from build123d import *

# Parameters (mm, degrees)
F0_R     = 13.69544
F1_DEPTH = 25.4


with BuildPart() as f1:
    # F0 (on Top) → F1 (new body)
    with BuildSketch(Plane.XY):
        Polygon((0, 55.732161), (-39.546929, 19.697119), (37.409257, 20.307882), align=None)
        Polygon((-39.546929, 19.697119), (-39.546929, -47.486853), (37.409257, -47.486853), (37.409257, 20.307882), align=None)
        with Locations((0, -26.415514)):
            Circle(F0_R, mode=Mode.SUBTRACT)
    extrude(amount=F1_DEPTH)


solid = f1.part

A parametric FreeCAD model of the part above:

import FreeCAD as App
import Part
import Sketcher

V = App.Vector
Q = App.Units.Quantity

doc = App.newDocument("Part")
body = doc.addObject("PartDesign::Body", "Body")

sketch1 = body.newObject("Sketcher::SketchObject", "Sketch")
sketch1.AttachmentSupport = (doc.getObject("XY_Plane"), [""])
sketch1.MapMode = "FlatFace"
sketch1.addGeometry([
    Part.LineSegment(V(0, 55.732161, 0), V(-39.546929, 19.697119, 0)),
    Part.LineSegment(V(-39.546929, 19.697119, 0), V(-39.546929, -47.486853, 0)),
    Part.LineSegment(V(-39.546929, -47.486853, 0), V(37.409257, -47.486853, 0)),
    Part.LineSegment(V(37.409257, -47.486853, 0), V(37.409257, 20.307882, 0)),
    Part.LineSegment(V(37.409257, 20.307882, 0), V(0, 55.732161, 0)),
    Part.Circle(V(0, -26.415514, 0), V(0, 0, 1), 13.69544),
], False)
sketch1.addConstraint([
    Sketcher.Constraint("Coincident", 0, 2, 1, 1),
    Sketcher.Constraint("Coincident", 1, 2, 2, 1),
    Sketcher.Constraint("Coincident", 2, 2, 3, 1),
    Sketcher.Constraint("Coincident", 3, 2, 4, 1),
    Sketcher.Constraint("Coincident", 4, 2, 0, 1),
    Sketcher.Constraint("Vertical", 1),
    Sketcher.Constraint("Horizontal", 2),
    Sketcher.Constraint("Vertical", 3),
    Sketcher.Constraint("PointOnObject", 5, 3, -2),
    Sketcher.Constraint("PointOnObject", 4, 2, -2),
    Sketcher.Constraint("Diameter", 5, 27.39088),
    Sketcher.Constraint("Distance", 4, 51.52021),
    Sketcher.Constraint("DistanceX", 2, 1, 2, 2, 76.956186),
    Sketcher.Constraint("DistanceY", 1, 2, 1, 1, 67.183972),
    Sketcher.Constraint("DistanceY", 3, 1, 3, 2, 67.794735),
    Sketcher.Constraint("DistanceX", 0, 2, -1, 1, 39.546929),
    Sketcher.Constraint("DistanceY", -1, 1, 0, 2, 19.697119),
    Sketcher.Constraint("DistanceY", 1, 2, 5, 3, 21.071339),
])
pad1 = body.newObject("PartDesign::Pad", "Pad")
pad1.Profile = sketch1
pad1.Length = Q("1 in")

doc.recompute()
